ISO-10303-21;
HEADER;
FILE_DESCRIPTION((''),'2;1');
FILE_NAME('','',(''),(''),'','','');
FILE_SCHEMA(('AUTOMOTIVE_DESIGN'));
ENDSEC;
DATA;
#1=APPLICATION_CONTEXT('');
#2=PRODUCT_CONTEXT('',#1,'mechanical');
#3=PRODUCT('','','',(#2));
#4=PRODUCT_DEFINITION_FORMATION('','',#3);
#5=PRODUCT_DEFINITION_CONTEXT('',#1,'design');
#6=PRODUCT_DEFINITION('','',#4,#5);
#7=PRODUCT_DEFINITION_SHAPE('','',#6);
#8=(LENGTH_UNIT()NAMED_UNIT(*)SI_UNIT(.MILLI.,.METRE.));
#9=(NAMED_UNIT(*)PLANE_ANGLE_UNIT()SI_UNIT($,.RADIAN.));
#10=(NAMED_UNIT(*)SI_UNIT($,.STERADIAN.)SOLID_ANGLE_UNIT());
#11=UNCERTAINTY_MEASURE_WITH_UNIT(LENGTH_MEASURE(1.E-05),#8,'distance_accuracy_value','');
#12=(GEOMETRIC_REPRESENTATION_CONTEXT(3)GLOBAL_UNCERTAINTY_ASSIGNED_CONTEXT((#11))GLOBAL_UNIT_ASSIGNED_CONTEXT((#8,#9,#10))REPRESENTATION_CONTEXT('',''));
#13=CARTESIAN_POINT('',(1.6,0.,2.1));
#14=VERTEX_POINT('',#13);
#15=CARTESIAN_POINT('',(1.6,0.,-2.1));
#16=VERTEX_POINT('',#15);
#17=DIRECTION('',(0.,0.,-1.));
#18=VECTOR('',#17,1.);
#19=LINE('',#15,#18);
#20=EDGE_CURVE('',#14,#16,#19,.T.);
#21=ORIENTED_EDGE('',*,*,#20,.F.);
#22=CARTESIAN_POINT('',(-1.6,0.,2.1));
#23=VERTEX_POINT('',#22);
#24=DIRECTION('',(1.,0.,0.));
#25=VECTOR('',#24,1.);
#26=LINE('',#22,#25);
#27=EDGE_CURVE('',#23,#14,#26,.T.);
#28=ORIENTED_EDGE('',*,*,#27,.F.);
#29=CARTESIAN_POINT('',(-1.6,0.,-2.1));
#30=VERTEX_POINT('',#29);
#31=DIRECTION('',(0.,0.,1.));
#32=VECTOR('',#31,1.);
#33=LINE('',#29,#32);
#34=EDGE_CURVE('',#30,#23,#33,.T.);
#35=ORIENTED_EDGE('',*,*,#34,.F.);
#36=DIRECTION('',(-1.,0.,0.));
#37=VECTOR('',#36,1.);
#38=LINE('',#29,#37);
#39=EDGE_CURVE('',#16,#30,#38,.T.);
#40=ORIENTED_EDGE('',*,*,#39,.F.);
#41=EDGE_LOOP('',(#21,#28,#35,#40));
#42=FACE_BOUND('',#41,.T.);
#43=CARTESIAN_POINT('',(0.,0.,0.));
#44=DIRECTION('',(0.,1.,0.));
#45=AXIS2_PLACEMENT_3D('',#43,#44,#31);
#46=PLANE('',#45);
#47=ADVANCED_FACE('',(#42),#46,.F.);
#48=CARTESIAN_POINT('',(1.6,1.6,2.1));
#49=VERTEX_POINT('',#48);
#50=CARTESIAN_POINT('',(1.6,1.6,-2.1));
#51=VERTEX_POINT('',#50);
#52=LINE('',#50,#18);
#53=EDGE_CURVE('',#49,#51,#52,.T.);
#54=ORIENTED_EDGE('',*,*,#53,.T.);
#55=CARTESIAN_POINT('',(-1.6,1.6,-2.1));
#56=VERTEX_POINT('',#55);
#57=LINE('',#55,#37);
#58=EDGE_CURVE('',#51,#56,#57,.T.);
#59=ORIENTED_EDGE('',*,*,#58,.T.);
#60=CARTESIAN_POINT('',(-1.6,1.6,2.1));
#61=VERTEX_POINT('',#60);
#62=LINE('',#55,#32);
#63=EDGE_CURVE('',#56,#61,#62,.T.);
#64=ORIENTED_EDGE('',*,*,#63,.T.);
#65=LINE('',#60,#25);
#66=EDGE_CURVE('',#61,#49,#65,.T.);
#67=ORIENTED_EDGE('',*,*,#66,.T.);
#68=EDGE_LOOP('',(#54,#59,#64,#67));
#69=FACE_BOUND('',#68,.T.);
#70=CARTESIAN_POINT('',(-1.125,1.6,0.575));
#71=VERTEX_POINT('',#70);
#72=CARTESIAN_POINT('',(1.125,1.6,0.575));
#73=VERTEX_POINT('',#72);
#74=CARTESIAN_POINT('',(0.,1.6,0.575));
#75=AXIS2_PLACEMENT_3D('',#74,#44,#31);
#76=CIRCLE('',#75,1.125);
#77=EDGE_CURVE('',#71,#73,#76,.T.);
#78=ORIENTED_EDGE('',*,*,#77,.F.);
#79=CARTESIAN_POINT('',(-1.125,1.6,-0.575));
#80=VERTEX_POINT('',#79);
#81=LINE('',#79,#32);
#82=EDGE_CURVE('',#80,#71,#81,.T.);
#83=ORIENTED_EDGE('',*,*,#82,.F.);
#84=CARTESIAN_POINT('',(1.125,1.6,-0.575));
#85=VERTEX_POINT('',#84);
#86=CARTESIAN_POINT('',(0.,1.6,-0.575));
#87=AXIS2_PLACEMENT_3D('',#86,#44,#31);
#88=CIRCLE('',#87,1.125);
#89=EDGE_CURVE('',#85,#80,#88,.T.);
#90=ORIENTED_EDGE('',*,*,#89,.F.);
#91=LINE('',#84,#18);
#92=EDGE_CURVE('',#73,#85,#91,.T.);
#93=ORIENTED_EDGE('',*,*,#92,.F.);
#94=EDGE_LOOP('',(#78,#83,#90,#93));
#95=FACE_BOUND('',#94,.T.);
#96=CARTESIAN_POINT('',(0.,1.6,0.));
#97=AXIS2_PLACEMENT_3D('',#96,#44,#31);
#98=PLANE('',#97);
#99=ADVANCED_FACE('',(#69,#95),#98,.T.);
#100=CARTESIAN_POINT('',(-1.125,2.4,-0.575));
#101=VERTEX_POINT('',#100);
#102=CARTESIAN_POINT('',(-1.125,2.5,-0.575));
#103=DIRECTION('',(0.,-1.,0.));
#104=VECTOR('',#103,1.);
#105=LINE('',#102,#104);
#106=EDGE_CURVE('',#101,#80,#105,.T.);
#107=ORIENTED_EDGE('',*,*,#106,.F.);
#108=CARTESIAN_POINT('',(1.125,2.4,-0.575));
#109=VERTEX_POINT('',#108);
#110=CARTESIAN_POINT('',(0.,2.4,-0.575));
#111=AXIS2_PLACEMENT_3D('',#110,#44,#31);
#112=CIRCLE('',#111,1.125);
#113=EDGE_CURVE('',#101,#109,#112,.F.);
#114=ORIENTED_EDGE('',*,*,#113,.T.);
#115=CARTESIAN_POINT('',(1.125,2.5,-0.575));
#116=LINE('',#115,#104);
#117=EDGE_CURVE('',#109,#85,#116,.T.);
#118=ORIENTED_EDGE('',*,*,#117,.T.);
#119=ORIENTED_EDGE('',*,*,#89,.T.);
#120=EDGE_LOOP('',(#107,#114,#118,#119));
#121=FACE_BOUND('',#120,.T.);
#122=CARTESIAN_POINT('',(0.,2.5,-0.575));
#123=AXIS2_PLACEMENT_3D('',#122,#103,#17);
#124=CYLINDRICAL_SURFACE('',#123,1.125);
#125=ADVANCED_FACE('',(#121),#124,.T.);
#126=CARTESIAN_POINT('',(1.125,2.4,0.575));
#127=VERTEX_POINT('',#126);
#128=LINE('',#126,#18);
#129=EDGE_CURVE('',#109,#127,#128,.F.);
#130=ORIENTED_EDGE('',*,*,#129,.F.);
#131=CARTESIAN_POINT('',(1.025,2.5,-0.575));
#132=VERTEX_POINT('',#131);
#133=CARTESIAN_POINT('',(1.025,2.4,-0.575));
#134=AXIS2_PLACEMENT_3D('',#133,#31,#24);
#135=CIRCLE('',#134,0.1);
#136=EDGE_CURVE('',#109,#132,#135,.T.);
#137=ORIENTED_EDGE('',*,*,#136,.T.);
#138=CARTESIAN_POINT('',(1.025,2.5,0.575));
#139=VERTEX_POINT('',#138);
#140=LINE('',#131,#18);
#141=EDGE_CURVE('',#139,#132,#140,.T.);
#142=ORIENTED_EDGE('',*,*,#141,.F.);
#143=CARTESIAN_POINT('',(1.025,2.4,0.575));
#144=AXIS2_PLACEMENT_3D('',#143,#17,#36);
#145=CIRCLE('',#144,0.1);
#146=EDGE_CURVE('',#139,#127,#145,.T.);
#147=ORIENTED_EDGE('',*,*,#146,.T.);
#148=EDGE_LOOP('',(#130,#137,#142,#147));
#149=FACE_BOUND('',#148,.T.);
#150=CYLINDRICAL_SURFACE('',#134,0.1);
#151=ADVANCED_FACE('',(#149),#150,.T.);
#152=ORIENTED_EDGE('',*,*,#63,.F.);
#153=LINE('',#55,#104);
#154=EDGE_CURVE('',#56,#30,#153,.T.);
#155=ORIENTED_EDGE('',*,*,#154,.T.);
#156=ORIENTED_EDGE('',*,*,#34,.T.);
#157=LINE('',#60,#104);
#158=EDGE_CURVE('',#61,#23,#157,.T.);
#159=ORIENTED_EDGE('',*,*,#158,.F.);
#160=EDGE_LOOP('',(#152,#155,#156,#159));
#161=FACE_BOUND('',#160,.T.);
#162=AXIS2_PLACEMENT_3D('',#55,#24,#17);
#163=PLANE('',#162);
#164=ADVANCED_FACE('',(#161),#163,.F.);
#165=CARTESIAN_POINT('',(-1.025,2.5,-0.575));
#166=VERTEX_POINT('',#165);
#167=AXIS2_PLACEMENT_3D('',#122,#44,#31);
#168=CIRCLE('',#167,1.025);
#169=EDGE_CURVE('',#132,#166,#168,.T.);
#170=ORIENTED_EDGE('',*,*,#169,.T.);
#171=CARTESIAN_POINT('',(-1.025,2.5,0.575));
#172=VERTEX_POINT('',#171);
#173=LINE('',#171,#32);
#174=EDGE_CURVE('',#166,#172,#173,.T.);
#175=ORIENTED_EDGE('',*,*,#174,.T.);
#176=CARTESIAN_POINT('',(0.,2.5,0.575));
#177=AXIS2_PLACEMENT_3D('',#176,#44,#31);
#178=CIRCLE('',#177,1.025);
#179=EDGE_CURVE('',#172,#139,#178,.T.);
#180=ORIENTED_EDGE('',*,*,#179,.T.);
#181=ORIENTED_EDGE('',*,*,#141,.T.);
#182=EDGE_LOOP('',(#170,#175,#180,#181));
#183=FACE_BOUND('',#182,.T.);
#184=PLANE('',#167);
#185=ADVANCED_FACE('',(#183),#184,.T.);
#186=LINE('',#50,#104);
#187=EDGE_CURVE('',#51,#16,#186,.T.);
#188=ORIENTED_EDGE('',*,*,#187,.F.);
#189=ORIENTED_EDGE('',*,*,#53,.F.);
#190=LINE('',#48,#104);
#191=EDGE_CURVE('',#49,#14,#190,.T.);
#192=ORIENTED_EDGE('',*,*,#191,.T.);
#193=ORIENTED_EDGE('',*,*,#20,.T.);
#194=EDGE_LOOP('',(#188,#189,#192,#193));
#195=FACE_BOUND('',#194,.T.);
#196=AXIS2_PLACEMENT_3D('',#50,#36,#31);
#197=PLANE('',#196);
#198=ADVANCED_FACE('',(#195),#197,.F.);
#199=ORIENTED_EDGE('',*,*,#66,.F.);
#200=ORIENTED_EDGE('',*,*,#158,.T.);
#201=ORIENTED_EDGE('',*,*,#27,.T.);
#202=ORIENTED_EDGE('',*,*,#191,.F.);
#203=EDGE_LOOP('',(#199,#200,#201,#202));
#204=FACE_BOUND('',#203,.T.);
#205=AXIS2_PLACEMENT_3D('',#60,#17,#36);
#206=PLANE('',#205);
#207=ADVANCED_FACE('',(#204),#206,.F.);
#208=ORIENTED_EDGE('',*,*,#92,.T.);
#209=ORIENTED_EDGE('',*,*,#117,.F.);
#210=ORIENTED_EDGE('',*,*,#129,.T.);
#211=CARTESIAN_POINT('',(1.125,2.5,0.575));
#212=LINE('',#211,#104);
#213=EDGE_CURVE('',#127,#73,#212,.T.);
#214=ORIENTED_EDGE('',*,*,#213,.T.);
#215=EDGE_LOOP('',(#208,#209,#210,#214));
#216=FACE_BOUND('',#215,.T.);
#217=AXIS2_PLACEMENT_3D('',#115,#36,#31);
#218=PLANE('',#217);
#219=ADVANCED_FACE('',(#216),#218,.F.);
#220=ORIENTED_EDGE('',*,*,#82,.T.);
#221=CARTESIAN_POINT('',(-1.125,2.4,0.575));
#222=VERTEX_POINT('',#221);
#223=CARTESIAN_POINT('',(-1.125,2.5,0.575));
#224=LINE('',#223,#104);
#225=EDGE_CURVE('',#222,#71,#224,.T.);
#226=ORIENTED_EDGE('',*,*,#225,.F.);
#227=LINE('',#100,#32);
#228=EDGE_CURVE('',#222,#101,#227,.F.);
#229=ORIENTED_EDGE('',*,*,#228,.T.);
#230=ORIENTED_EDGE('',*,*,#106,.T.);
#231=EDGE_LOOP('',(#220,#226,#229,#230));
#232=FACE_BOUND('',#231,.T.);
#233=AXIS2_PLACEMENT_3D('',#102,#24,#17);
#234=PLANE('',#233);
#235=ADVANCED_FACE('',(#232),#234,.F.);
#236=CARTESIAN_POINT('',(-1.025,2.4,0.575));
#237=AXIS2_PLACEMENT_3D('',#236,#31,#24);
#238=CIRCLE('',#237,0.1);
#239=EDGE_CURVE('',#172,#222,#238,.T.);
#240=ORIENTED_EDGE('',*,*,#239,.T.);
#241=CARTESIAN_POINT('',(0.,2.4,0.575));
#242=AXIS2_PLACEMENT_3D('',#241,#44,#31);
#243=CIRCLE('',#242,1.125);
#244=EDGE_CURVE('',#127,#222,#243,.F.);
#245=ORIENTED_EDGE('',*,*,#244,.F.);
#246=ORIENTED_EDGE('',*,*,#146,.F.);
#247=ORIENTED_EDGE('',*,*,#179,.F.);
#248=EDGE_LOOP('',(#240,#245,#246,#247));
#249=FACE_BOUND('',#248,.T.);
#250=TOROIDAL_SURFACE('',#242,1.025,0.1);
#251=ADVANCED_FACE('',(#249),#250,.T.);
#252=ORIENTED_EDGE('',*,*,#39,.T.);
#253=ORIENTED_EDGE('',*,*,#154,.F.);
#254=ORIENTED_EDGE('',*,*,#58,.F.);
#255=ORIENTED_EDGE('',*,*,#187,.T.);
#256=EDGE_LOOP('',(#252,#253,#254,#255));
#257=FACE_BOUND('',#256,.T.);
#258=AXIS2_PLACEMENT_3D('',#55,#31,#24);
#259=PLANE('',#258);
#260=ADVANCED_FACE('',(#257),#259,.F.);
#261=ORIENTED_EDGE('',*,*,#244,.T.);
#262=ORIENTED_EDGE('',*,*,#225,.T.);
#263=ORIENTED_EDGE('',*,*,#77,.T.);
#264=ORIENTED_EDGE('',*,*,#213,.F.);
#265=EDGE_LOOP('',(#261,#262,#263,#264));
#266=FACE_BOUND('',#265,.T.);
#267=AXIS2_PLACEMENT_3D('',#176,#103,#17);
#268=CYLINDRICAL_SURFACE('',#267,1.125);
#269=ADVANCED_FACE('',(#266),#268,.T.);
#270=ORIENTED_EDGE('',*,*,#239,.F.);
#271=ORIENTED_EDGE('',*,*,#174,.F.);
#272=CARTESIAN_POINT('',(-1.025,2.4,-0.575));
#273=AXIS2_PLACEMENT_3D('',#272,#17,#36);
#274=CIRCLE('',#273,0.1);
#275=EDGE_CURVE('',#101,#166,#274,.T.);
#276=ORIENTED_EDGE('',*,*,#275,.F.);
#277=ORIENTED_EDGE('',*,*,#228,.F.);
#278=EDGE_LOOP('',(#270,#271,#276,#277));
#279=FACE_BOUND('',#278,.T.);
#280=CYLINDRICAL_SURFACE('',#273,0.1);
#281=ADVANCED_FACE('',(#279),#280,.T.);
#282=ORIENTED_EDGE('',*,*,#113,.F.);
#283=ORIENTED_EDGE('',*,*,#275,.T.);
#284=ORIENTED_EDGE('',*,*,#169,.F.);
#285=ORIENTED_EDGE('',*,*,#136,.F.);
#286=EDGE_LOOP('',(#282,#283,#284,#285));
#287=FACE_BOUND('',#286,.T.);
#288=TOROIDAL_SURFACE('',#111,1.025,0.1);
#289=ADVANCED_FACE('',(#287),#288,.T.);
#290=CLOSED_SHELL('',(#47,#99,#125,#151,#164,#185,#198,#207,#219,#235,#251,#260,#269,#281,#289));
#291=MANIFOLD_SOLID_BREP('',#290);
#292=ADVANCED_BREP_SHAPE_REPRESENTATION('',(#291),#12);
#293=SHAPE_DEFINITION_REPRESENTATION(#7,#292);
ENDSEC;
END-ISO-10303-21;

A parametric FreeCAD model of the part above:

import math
import FreeCAD as App
import Part
import Sketcher
from FreeCAD import Vector
Q = App.Units.Quantity


def edges_at(feature, points):
    """Names of the edges that pass closest to the given points."""
    edges = feature.Shape.Edges
    near = lambda p: min(range(len(edges)), key=lambda i: edges[i].distToShape(Part.Vertex(*p))[0])
    return sorted({f"Edge{near(p) + 1}" for p in points})

doc = App.newDocument("Part")
body = doc.addObject("PartDesign::Body", "Body")

sketch1 = doc.addObject("Sketcher::SketchObject", "Sketch")
body.addObject(sketch1)
sketch1.AttachmentSupport = (doc.XZ_Plane, [""])
sketch1.MapMode = "FlatFace"
sketch1.addGeometry(Part.LineSegment(Vector(-1.6, -2.1, 0), Vector(-1.6, 2.1, 0)), False)
sketch1.addGeometry(Part.LineSegment(Vector(-1.6, 2.1, 0), Vector(1.6, 2.1, 0)), False)
sketch1.addGeometry(Part.LineSegment(Vector(1.6, 2.1, 0), Vector(1.6, -2.1, 0)), False)
sketch1.addGeometry(Part.LineSegment(Vector(1.6, -2.1, 0), Vector(-1.6, -2.1, 0)), False)
sketch1.addConstraint(Sketcher.Constraint("Coincident", 0, 2, 1, 1))
sketch1.addConstraint(Sketcher.Constraint("Coincident", 1, 2, 2, 1))
sketch1.addConstraint(Sketcher.Constraint("Coincident", 2, 2, 3, 1))
sketch1.addConstraint(Sketcher.Constraint("Coincident", 3, 2, 0, 1))
sketch1.addConstraint(Sketcher.Constraint("Vertical", 0))
sketch1.addConstraint(Sketcher.Constraint("Horizontal", 1))
sketch1.addConstraint(Sketcher.Constraint("Vertical", 2))
sketch1.addConstraint(Sketcher.Constraint("Horizontal", 3))
sketch1.addConstraint(Sketcher.Constraint("Symmetric", 0, 2, 2, 2, -1, 1))
sketch1.addConstraint(Sketcher.Constraint("DistanceX", 1, 1, 1, 2, Q("3.2 mm")))
sketch1.addConstraint(Sketcher.Constraint("DistanceY", 0, 1, 0, 2, Q("4.2 mm")))
pad1 = doc.addObject("PartDesign::Pad", "Pad")
body.addObject(pad1)
pad1.Profile = sketch1
pad1.Length = 1.6
pad1.Reversed = True

sketch2 = doc.addObject("Sketcher::SketchObject", "Sketch001")
body.addObject(sketch2)
sketch2.AttachmentSupport = (doc.XZ_Plane, [""])
sketch2.MapMode = "FlatFace"
sketch2.AttachmentOffset = App.Placement(Vector(0, 0, -1.6), App.Rotation())
sketch2.addGeometry(Part.LineSegment(Vector(1.1, 0.6, 0), Vector(1.1, -0.6, 0)), False)
sketch2.addGeometry(Part.ArcOfCircle(Part.Circle(Vector(0, -0.6, 0), Vector(0, 0, 1), 1.1), math.radians(180), math.radians(360)), False)
sketch2.addGeometry(Part.LineSegment(Vector(-1.1, -0.6, 0), Vector(-1.1, 0.6, 0)), False)
sketch2.addGeometry(Part.ArcOfCircle(Part.Circle(Vector(0, 0.6, 0), Vector(0, 0, 1), 1.1), math.radians(0), math.radians(180)), False)
sketch2.addConstraint(Sketcher.Constraint("Tangent", 0, 2, 1, 2))
sketch2.addConstraint(Sketcher.Constraint("Tangent", 1, 1, 2, 1))
sketch2.addConstraint(Sketcher.Constraint("Tangent", 2, 2, 3, 2))
sketch2.addConstraint(Sketcher.Constraint("Tangent", 3, 1, 0, 1))
sketch2.addConstraint(Sketcher.Constraint("Vertical", 0))
sketch2.addConstraint(Sketcher.Constraint("Vertical", 2))
sketch2.addConstraint(Sketcher.Constraint("Symmetric", 1, 3, 3, 3, -1, 1))
sketch2.addConstraint(Sketcher.Constraint("Radius", 1, Q("1.125 mm")))
sketch2.addConstraint(Sketcher.Constraint("DistanceY", 0, 2, 0, 1, Q("1.15 mm")))
pad2 = doc.addObject("PartDesign::Pad", "Pad001")
body.addObject(pad2)
pad2.Profile = sketch2
pad2.Length = 0.9
pad2.Reversed = True
doc.recompute()

fillet = doc.addObject("PartDesign::Fillet", "Fillet")
body.addObject(fillet)
fillet.Base = (pad2, edges_at(pad2, [
    (0, 2.5, -1.7),
    (-1.125, 2.5, 0),
    (0, 2.5, 1.7),
    (1.125, 2.5, 0),
]))
fillet.Radius = 0.1

doc.recompute()
